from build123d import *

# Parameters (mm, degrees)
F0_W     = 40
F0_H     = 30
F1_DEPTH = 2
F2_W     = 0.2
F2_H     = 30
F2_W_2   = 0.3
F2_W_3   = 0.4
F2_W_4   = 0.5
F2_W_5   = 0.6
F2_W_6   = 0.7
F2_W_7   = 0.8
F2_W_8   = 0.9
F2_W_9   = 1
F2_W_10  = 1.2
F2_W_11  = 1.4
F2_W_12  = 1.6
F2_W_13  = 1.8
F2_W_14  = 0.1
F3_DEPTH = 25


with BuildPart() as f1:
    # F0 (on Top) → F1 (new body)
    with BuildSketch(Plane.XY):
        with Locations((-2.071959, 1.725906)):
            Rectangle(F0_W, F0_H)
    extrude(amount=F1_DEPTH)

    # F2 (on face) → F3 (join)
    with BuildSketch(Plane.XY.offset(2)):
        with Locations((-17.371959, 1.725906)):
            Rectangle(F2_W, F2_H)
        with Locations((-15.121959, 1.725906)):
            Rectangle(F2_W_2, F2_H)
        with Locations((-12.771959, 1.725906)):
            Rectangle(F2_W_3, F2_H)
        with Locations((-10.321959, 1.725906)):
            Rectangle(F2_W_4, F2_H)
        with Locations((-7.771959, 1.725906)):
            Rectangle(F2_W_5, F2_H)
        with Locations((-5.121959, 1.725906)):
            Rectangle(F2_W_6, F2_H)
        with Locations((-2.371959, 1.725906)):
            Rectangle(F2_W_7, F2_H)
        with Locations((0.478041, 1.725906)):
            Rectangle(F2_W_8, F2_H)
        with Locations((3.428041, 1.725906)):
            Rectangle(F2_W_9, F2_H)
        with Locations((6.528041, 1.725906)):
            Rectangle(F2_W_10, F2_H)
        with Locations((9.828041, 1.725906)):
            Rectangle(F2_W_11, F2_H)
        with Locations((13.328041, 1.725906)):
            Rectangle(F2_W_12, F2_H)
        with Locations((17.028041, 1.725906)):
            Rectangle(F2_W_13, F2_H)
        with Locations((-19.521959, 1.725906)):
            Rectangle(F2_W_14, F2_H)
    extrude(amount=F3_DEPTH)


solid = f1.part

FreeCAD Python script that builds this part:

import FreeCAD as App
import Part
import Sketcher
from FreeCAD import Vector
Q = App.Units.Quantity

doc = App.newDocument("Part")
body = doc.addObject("PartDesign::Body", "Body")

# Sketch on XY plane
sketch1 = doc.addObject("Sketcher::SketchObject", "Sketch")
body.addObject(sketch1)
sketch1.AttachmentSupport = (doc.XY_Plane, [""])
sketch1.MapMode = "FlatFace"
sketch1.addGeometry(Part.LineSegment(Vector(-22, 17, 0), Vector(-22, -13, 0)), False)
sketch1.addGeometry(Part.LineSegment(Vector(-22, -13, 0), Vector(18, -13, 0)), False)
sketch1.addGeometry(Part.LineSegment(Vector(18, -13, 0), Vector(18, 17, 0)), False)
sketch1.addGeometry(Part.LineSegment(Vector(18, 17, 0), Vector(-22, 17, 0)), False)
sketch1.addConstraint(Sketcher.Constraint("Coincident", 0, 2, 1, 1))
sketch1.addConstraint(Sketcher.Constraint("Coincident", 1, 2, 2, 1))
sketch1.addConstraint(Sketcher.Constraint("Coincident", 2, 2, 3, 1))
sketch1.addConstraint(Sketcher.Constraint("Coincident", 3, 2, 0, 1))
sketch1.addConstraint(Sketcher.Constraint("Vertical", 0))
sketch1.addConstraint(Sketcher.Constraint("Horizontal", 1))
sketch1.addConstraint(Sketcher.Constraint("Vertical", 2))
sketch1.addConstraint(Sketcher.Constraint("Horizontal", 3))
sketch1.addConstraint(Sketcher.Constraint("DistanceX", 1, 1, 1, 2, Q("40 mm")))
sketch1.addConstraint(Sketcher.Constraint("DistanceY", 0, 2, 0, 1, Q("30 mm")))
sketch1.addConstraint(Sketcher.Constraint("DistanceX", 0, 2, -1, 1, Q("22.071959 mm")))
sketch1.addConstraint(Sketcher.Constraint("DistanceY", 0, 2, -1, 1, Q("13.274094 mm")))
pad1 = doc.addObject("PartDesign::Pad", "Pad")
body.addObject(pad1)
pad1.Profile = sketch1
pad1.Length = 2

# Sketch on XY plane
sketch2 = doc.addObject("Sketcher::SketchObject", "Sketch001")
body.addObject(sketch2)
sketch2.AttachmentSupport = (doc.XY_Plane, [""])
sketch2.MapMode = "FlatFace"
sketch2.AttachmentOffset = App.Placement(Vector(0, 0, 2), App.Rotation())
sketch2.addGeometry(Part.LineSegment(Vector(-17.47, 16.73, 0), Vector(-17.47, -13.27, 0)), False)
sketch2.addGeometry(Part.LineSegment(Vector(-17.47, -13.27, 0), Vector(-17.27, -13.27, 0)), False)
sketch2.addGeometry(Part.LineSegment(Vector(-17.27, -13.27, 0), Vector(-17.27, 16.73, 0)), False)
sketch2.addGeometry(Part.LineSegment(Vector(-17.27, 16.73, 0), Vector(-17.47, 16.73, 0)), False)
sketch2.addGeometry(Part.LineSegment(Vector(-15.27, 16.73, 0), Vector(-15.27, -13.27, 0)), False)
sketch2.addGeometry(Part.LineSegment(Vector(-15.27, -13.27, 0), Vector(-14.97, -13.27, 0)), False)
sketch2.addGeometry(Part.LineSegment(Vector(-14.97, -13.27, 0), Vector(-14.97, 16.73, 0)), False)
sketch2.addGeometry(Part.LineSegment(Vector(-14.97, 16.73, 0), Vector(-15.27, 16.73, 0)), False)
sketch2.addGeometry(Part.LineSegment(Vector(-12.97, 16.73, 0), Vector(-12.97, -13.27, 0)), False)
sketch2.addGeometry(Part.LineSegment(Vector(-12.97, -13.27, 0), Vector(-12.57, -13.27, 0)), False)
sketch2.addGeometry(Part.LineSegment(Vector(-12.57, -13.27, 0), Vector(-12.57, 16.73, 0)), False)
sketch2.addGeometry(Part.LineSegment(Vector(-12.57, 16.73, 0), Vector(-12.97, 16.73, 0)), False)
sketch2.addGeometry(Part.LineSegment(Vector(-10.57, 16.73, 0), Vector(-10.57, -13.27, 0)), False)
sketch2.addGeometry(Part.LineSegment(Vector(-10.57, -13.27, 0), Vector(-10.07, -13.27, 0)), False)
sketch2.addGeometry(Part.LineSegment(Vector(-10.07, -13.27, 0), Vector(-10.07, 16.73, 0)), False)
sketch2.addGeometry(Part.LineSegment(Vector(-10.07, 16.73, 0), Vector(-10.57, 16.73, 0)), False)
sketch2.addGeometry(Part.LineSegment(Vector(-8.07, 16.73, 0), Vector(-8.07, -13.27, 0)), False)
sketch2.addGeometry(Part.LineSegment(Vector(-8.07, -13.27, 0), Vector(-7.47, -13.27, 0)), False)
sketch2.addGeometry(Part.LineSegment(Vector(-7.47, -13.27, 0), Vector(-7.47, 16.73, 0)), False)
sketch2.addGeometry(Part.LineSegment(Vector(-7.47, 16.73, 0), Vector(-8.07, 16.73, 0)), False)
sketch2.addGeometry(Part.LineSegment(Vector(-5.47, 16.73, 0), Vector(-5.47, -13.27, 0)), False)
sketch2.addGeometry(Part.LineSegment(Vector(-5.47, -13.27, 0), Vector(-4.77, -13.27, 0)), False)
sketch2.addGeometry(Part.LineSegment(Vector(-4.77, -13.27, 0), Vector(-4.77, 16.73, 0)), False)
sketch2.addGeometry(Part.LineSegment(Vector(-4.77, 16.73, 0), Vector(-5.47, 16.73, 0)), False)
sketch2.addGeometry(Part.LineSegment(Vector(-2.77, 16.73, 0), Vector(-2.77, -13.27, 0)), False)
sketch2.addGeometry(Part.LineSegment(Vector(-2.77, -13.27, 0), Vector(-1.97, -13.27, 0)), False)
sketch2.addGeometry(Part.LineSegment(Vector(-1.97, -13.27, 0), Vector(-1.97, 16.73, 0)), False)
sketch2.addGeometry(Part.LineSegment(Vector(-1.97, 16.73, 0), Vector(-2.77, 16.73, 0)), False)
sketch2.addGeometry(Part.LineSegment(Vector(0.03, 16.73, 0), Vector(0.03, -13.27, 0)), False)
sketch2.addGeometry(Part.LineSegment(Vector(0.03, -13.27, 0), Vector(0.93, -13.27, 0)), False)
sketch2.addGeometry(Part.LineSegment(Vector(0.93, -13.27, 0), Vector(0.93, 16.73, 0)), False)
sketch2.addGeometry(Part.LineSegment(Vector(0.93, 16.73, 0), Vector(0.03, 16.73, 0)), False)
sketch2.addGeometry(Part.LineSegment(Vector(2.93, 16.73, 0), Vector(2.93, -13.27, 0)), False)
sketch2.addGeometry(Part.LineSegment(Vector(2.93, -13.27, 0), Vector(3.93, -13.27, 0)), False)
sketch2.addGeometry(Part.LineSegment(Vector(3.93, -13.27, 0), Vector(3.93, 16.73, 0)), False)
sketch2.addGeometry(Part.LineSegment(Vector(3.93, 16.73, 0), Vector(2.93, 16.73, 0)), False)
sketch2.addGeometry(Part.LineSegment(Vector(5.93, 16.73, 0), Vector(5.93, -13.27, 0)), False)
sketch2.addGeometry(Part.LineSegment(Vector(5.93, -13.27, 0), Vector(7.13, -13.27, 0)), False)
sketch2.addGeometry(Part.LineSegment(Vector(7.13, -13.27, 0), Vector(7.13, 16.73, 0)), False)
sketch2.addGeometry(Part.LineSegment(Vector(7.13, 16.73, 0), Vector(5.93, 16.73, 0)), False)
sketch2.addGeometry(Part.LineSegment(Vector(9.13, 16.73, 0), Vector(9.13, -13.27, 0)), False)
sketch2.addGeometry(Part.LineSegment(Vector(9.13, -13.27, 0), Vector(10.53, -13.27, 0)), False)
sketch2.addGeometry(Part.LineSegment(Vector(10.53, -13.27, 0), Vector(10.53, 16.73, 0)), False)
sketch2.addGeometry(Part.LineSegment(Vector(10.53, 16.73, 0), Vector(9.13, 16.73, 0)), False)
sketch2.addGeometry(Part.LineSegment(Vector(12.53, 16.73, 0), Vector(12.53, -13.27, 0)), False)
sketch2.addGeometry(Part.LineSegment(Vector(12.53, -13.27, 0), Vector(14.13, -13.27, 0)), False)
sketch2.addGeometry(Part.LineSegment(Vector(14.13, -13.27, 0), Vector(14.13, 16.73, 0)), False)
sketch2.addGeometry(Part.LineSegment(Vector(14.13, 16.73, 0), Vector(12.53, 16.73, 0)), False)
sketch2.addGeometry(Part.LineSegment(Vector(16.13, 16.73, 0), Vector(16.13, -13.27, 0)), False)
sketch2.addGeometry(Part.LineSegment(Vector(16.13, -13.27, 0), Vector(17.93, -13.27, 0)), False)
sketch2.addGeometry(Part.LineSegment(Vector(17.93, -13.27, 0), Vector(17.93, 16.73, 0)), False)
sketch2.addGeometry(Part.LineSegment(Vector(17.93, 16.73, 0), Vector(16.13, 16.73, 0)), False)
sketch2.addGeometry(Part.LineSegment(Vector(-19.57, 16.73, 0), Vector(-19.57, -13.27, 0)), False)
sketch2.addGeometry(Part.LineSegment(Vector(-19.57, -13.27, 0), Vector(-19.47, -13.27, 0)), False)
sketch2.addGeometry(Part.LineSegment(Vector(-19.47, -13.27, 0), Vector(-19.47, 16.73, 0)), False)
sketch2.addGeometry(Part.LineSegment(Vector(-19.47, 16.73, 0), Vector(-19.57, 16.73, 0)), False)
sketch2.addConstraint(Sketcher.Constraint("Coincident", 0, 2, 1, 1))
sketch2.addConstraint(Sketcher.Constraint("Coincident", 1, 2, 2, 1))
sketch2.addConstraint(Sketcher.Constraint("Coincident", 2, 2, 3, 1))
sketch2.addConstraint(Sketcher.Constraint("Coincident", 3, 2, 0, 1))
sketch2.addConstraint(Sketcher.Constraint("Coincident", 4, 2, 5, 1))
sketch2.addConstraint(Sketcher.Constraint("Coincident", 5, 2, 6, 1))
sketch2.addConstraint(Sketcher.Constraint("Coincident", 6, 2, 7, 1))
sketch2.addConstraint(Sketcher.Constraint("Coincident", 7, 2, 4, 1))
sketch2.addConstraint(Sketcher.Constraint("Coincident", 8, 2, 9, 1))
sketch2.addConstraint(Sketcher.Constraint("Coincident", 9, 2, 10, 1))
sketch2.addConstraint(Sketcher.Constraint("Coincident", 10, 2, 11, 1))
sketch2.addConstraint(Sketcher.Constraint("Coincident", 11, 2, 8, 1))
sketch2.addConstraint(Sketcher.Constraint("Coincident", 12, 2, 13, 1))
sketch2.addConstraint(Sketcher.Constraint("Coincident", 13, 2, 14, 1))
sketch2.addConstraint(Sketcher.Constraint("Coincident", 14, 2, 15, 1))
sketch2.addConstraint(Sketcher.Constraint("Coincident", 15, 2, 12, 1))
sketch2.addConstraint(Sketcher.Constraint("Coincident", 16, 2, 17, 1))
sketch2.addConstraint(Sketcher.Constraint("Coincident", 17, 2, 18, 1))
sketch2.addConstraint(Sketcher.Constraint("Coincident", 18, 2, 19, 1))
sketch2.addConstraint(Sketcher.Constraint("Coincident", 19, 2, 16, 1))
sketch2.addConstraint(Sketcher.Constraint("Coincident", 20, 2, 21, 1))
sketch2.addConstraint(Sketcher.Constraint("Coincident", 21, 2, 22, 1))
sketch2.addConstraint(Sketcher.Constraint("Coincident", 22, 2, 23, 1))
sketch2.addConstraint(Sketcher.Constraint("Coincident", 23, 2, 20, 1))
sketch2.addConstraint(Sketcher.Constraint("Coincident", 24, 2, 25, 1))
sketch2.addConstraint(Sketcher.Constraint("Coincident", 25, 2, 26, 1))
sketch2.addConstraint(Sketcher.Constraint("Coincident", 26, 2, 27, 1))
sketch2.addConstraint(Sketcher.Constraint("Coincident", 27, 2, 24, 1))
sketch2.addConstraint(Sketcher.Constraint("Coincident", 28, 2, 29, 1))
sketch2.addConstraint(Sketcher.Constraint("Coincident", 29, 2, 30, 1))
sketch2.addConstraint(Sketcher.Constraint("Coincident", 30, 2, 31, 1))
sketch2.addConstraint(Sketcher.Constraint("Coincident", 31, 2, 28, 1))
sketch2.addConstraint(Sketcher.Constraint("Coincident", 32, 2, 33, 1))
sketch2.addConstraint(Sketcher.Constraint("Coincident", 33, 2, 34, 1))
sketch2.addConstraint(Sketcher.Constraint("Coincident", 34, 2, 35, 1))
sketch2.addConstraint(Sketcher.Constraint("Coincident", 35, 2, 32, 1))
sketch2.addConstraint(Sketcher.Constraint("Coincident", 36, 2, 37, 1))
sketch2.addConstraint(Sketcher.Constraint("Coincident", 37, 2, 38, 1))
sketch2.addConstraint(Sketcher.Constraint("Coincident", 38, 2, 39, 1))
sketch2.addConstraint(Sketcher.Constraint("Coincident", 39, 2, 36, 1))
sketch2.addConstraint(Sketcher.Constraint("Coincident", 40, 2, 41, 1))
sketch2.addConstraint(Sketcher.Constraint("Coincident", 41, 2, 42, 1))
sketch2.addConstraint(Sketcher.Constraint("Coincident", 42, 2, 43, 1))
sketch2.addConstraint(Sketcher.Constraint("Coincident", 43, 2, 40, 1))
sketch2.addConstraint(Sketcher.Constraint("Coincident", 44, 2, 45, 1))
sketch2.addConstraint(Sketcher.Constraint("Coincident", 45, 2, 46, 1))
sketch2.addConstraint(Sketcher.Constraint("Coincident", 46, 2, 47, 1))
sketch2.addConstraint(Sketcher.Constraint("Coincident", 47, 2, 44, 1))
sketch2.addConstraint(Sketcher.Constraint("Coincident", 48, 2, 49, 1))
sketch2.addConstraint(Sketcher.Constraint("Coincident", 49, 2, 50, 1))
sketch2.addConstraint(Sketcher.Constraint("Coincident", 50, 2, 51, 1))
sketch2.addConstraint(Sketcher.Constraint("Coincident", 51, 2, 48, 1))
sketch2.addConstraint(Sketcher.Constraint("Coincident", 52, 2, 53, 1))
sketch2.addConstraint(Sketcher.Constraint("Coincident", 53, 2, 54, 1))
sketch2.addConstraint(Sketcher.Constraint("Coincident", 54, 2, 55, 1))
sketch2.addConstraint(Sketcher.Constraint("Coincident", 55, 2, 52, 1))
sketch2.addConstraint(Sketcher.Constraint("Vertical", 0))
sketch2.addConstraint(Sketcher.Constraint("Horizontal", 1))
sketch2.addConstraint(Sketcher.Constraint("Vertical", 2))
sketch2.addConstraint(Sketcher.Constraint("Horizontal", 3))
sketch2.addConstraint(Sketcher.Constraint("Vertical", 4))
sketch2.addConstraint(Sketcher.Constraint("Horizontal", 5))
sketch2.addConstraint(Sketcher.Constraint("Vertical", 6))
sketch2.addConstraint(Sketcher.Constraint("Horizontal", 7))
sketch2.addConstraint(Sketcher.Constraint("Vertical", 8))
sketch2.addConstraint(Sketcher.Constraint("Horizontal", 9))
sketch2.addConstraint(Sketcher.Constraint("Vertical", 10))
sketch2.addConstraint(Sketcher.Constraint("Horizontal", 11))
sketch2.addConstraint(Sketcher.Constraint("Vertical", 12))
sketch2.addConstraint(Sketcher.Constraint("Horizontal", 13))
sketch2.addConstraint(Sketcher.Constraint("Vertical", 14))
sketch2.addConstraint(Sketcher.Constraint("Horizontal", 15))
sketch2.addConstraint(Sketcher.Constraint("Vertical", 16))
sketch2.addConstraint(Sketcher.Constraint("Horizontal", 17))
sketch2.addConstraint(Sketcher.Constraint("Vertical", 18))
sketch2.addConstraint(Sketcher.Constraint("Horizontal", 19))
sketch2.addConstraint(Sketcher.Constraint("Vertical", 20))
sketch2.addConstraint(Sketcher.Constraint("Horizontal", 21))
sketch2.addConstraint(Sketcher.Constraint("Vertical", 22))
sketch2.addConstraint(Sketcher.Constraint("Horizontal", 23))
sketch2.addConstraint(Sketcher.Constraint("Vertical", 24))
sketch2.addConstraint(Sketcher.Constraint("Horizontal", 25))
sketch2.addConstraint(Sketcher.Constraint("Vertical", 26))
sketch2.addConstraint(Sketcher.Constraint("Horizontal", 27))
sketch2.addConstraint(Sketcher.Constraint("Vertical", 28))
sketch2.addConstraint(Sketcher.Constraint("Horizontal", 29))
sketch2.addConstraint(Sketcher.Constraint("Vertical", 30))
sketch2.addConstraint(Sketcher.Constraint("Horizontal", 31))
sketch2.addConstraint(Sketcher.Constraint("Vertical", 32))
sketch2.addConstraint(Sketcher.Constraint("Horizontal", 33))
sketch2.addConstraint(Sketcher.Constraint("Vertical", 34))
sketch2.addConstraint(Sketcher.Constraint("Horizontal", 35))
sketch2.addConstraint(Sketcher.Constraint("Vertical", 36))
sketch2.addConstraint(Sketcher.Constraint("Horizontal", 37))
sketch2.addConstraint(Sketcher.Constraint("Vertical", 38))
sketch2.addConstraint(Sketcher.Constraint("Horizontal", 39))
sketch2.addConstraint(Sketcher.Constraint("Vertical", 40))
sketch2.addConstraint(Sketcher.Constraint("Horizontal", 41))
sketch2.addConstraint(Sketcher.Constraint("Vertical", 42))
sketch2.addConstraint(Sketcher.Constraint("Horizontal", 43))
sketch2.addConstraint(Sketcher.Constraint("Vertical", 44))
sketch2.addConstraint(Sketcher.Constraint("Horizontal", 45))
sketch2.addConstraint(Sketcher.Constraint("Vertical", 46))
sketch2.addConstraint(Sketcher.Constraint("Horizontal", 47))
sketch2.addConstraint(Sketcher.Constraint("Vertical", 48))
sketch2.addConstraint(Sketcher.Constraint("Horizontal", 49))
sketch2.addConstraint(Sketcher.Constraint("Vertical", 50))
sketch2.addConstraint(Sketcher.Constraint("Horizontal", 51))
sketch2.addConstraint(Sketcher.Constraint("Vertical", 52))
sketch2.addConstraint(Sketcher.Constraint("Horizontal", 53))
sketch2.addConstraint(Sketcher.Constraint("Vertical", 54))
sketch2.addConstraint(Sketcher.Constraint("Horizontal", 55))
sketch2.addConstraint(Sketcher.Constraint("Horizontal", 1, 2, 4, 2))
sketch2.addConstraint(Sketcher.Constraint("Horizontal", 3, 2, 6, 2))
sketch2.addConstraint(Sketcher.Constraint("Horizontal", 5, 2, 8, 2))
sketch2.addConstraint(Sketcher.Constraint("Horizontal", 7, 2, 10, 2))
sketch2.addConstraint(Sketcher.Constraint("Horizontal", 9, 2, 12, 2))
sketch2.addConstraint(Sketcher.Constraint("Horizontal", 11, 2, 14, 2))
sketch2.addConstraint(Sketcher.Constraint("Horizontal", 13, 2, 16, 2))
sketch2.addConstraint(Sketcher.Constraint("Horizontal", 15, 2, 18, 2))
sketch2.addConstraint(Sketcher.Constraint("Horizontal", 17, 2, 20, 2))
sketch2.addConstraint(Sketcher.Constraint("Horizontal", 19, 2, 22, 2))
sketch2.addConstraint(Sketcher.Constraint("Horizontal", 21, 2, 24, 2))
sketch2.addConstraint(Sketcher.Constraint("Horizontal", 23, 2, 26, 2))
sketch2.addConstraint(Sketcher.Constraint("Horizontal", 25, 2, 28, 2))
sketch2.addConstraint(Sketcher.Constraint("Horizontal", 27, 2, 30, 2))
sketch2.addConstraint(Sketcher.Constraint("Horizontal", 29, 2, 32, 2))
sketch2.addConstraint(Sketcher.Constraint("Horizontal", 31, 2, 34, 2))
sketch2.addConstraint(Sketcher.Constraint("Horizontal", 33, 2, 36, 2))
sketch2.addConstraint(Sketcher.Constraint("Horizontal", 35, 2, 38, 2))
sketch2.addConstraint(Sketcher.Constraint("Horizontal", 37, 2, 40, 2))
sketch2.addConstraint(Sketcher.Constraint("Horizontal", 39, 2, 42, 2))
sketch2.addConstraint(Sketcher.Constraint("Horizontal", 41, 2, 44, 2))
sketch2.addConstraint(Sketcher.Constraint("Horizontal", 43, 2, 46, 2))
sketch2.addConstraint(Sketcher.Constraint("Horizontal", 45, 2, 48, 2))
sketch2.addConstraint(Sketcher.Constraint("Horizontal", 47, 2, 50, 2))
sketch2.addConstraint(Sketcher.Constraint("Horizontal", 49, 2, 52, 2))
sketch2.addConstraint(Sketcher.Constraint("Horizontal", 51, 2, 54, 2))
sketch2.addConstraint(Sketcher.Constraint("DistanceX", 33, 1, 33, 2, Q("1 mm")))
sketch2.addConstraint(Sketcher.Constraint("DistanceY", 0, 2, 0, 1, Q("30 mm")))
sketch2.addConstraint(Sketcher.Constraint("DistanceX", 1, 1, 1, 2, Q("0.2 mm")))
sketch2.addConstraint(Sketcher.Constraint("DistanceX", 5, 1, 5, 2, Q("0.3 mm")))
sketch2.addConstraint(Sketcher.Constraint("DistanceX", 9, 1, 9, 2, Q("0.4 mm")))
sketch2.addConstraint(Sketcher.Constraint("DistanceX", 13, 1, 13, 2, Q("0.5 mm")))
sketch2.addConstraint(Sketcher.Constraint("DistanceX", 17, 1, 17, 2, Q("0.6 mm")))
sketch2.addConstraint(Sketcher.Constraint("DistanceX", 21, 1, 21, 2, Q("0.7 mm")))
sketch2.addConstraint(Sketcher.Constraint("DistanceX", 25, 1, 25, 2, Q("0.8 mm")))
sketch2.addConstraint(Sketcher.Constraint("DistanceX", 29, 1, 29, 2, Q("0.9 mm")))
sketch2.addConstraint(Sketcher.Constraint("DistanceX", 37, 1, 37, 2, Q("1.2 mm")))
sketch2.addConstraint(Sketcher.Constraint("DistanceX", 41, 1, 41, 2, Q("1.4 mm")))
sketch2.addConstraint(Sketcher.Constraint("DistanceX", 45, 1, 45, 2, Q("1.6 mm")))
sketch2.addConstraint(Sketcher.Constraint("DistanceX", 49, 1, 49, 2, Q("1.8 mm")))
sketch2.addConstraint(Sketcher.Constraint("DistanceX", 53, 1, 53, 2, Q("0.1 mm")))
sketch2.addConstraint(Sketcher.Constraint("DistanceX", 1, 2, 4, 2, Q("2 mm")))
sketch2.addConstraint(Sketcher.Constraint("DistanceX", 5, 2, 8, 2, Q("2 mm")))
sketch2.addConstraint(Sketcher.Constraint("DistanceX", 9, 2, 12, 2, Q("2 mm")))
sketch2.addConstraint(Sketcher.Constraint("DistanceX", 13, 2, 16, 2, Q("2 mm")))
sketch2.addConstraint(Sketcher.Constraint("DistanceX", 17, 2, 20, 2, Q("2 mm")))
sketch2.addConstraint(Sketcher.Constraint("DistanceX", 21, 2, 24, 2, Q("2 mm")))
sketch2.addConstraint(Sketcher.Constraint("DistanceX", 25, 2, 28, 2, Q("2 mm")))
sketch2.addConstraint(Sketcher.Constraint("DistanceX", 29, 2, 32, 2, Q("2 mm")))
sketch2.addConstraint(Sketcher.Constraint("DistanceX", 33, 2, 36, 2, Q("2 mm")))
sketch2.addConstraint(Sketcher.Constraint("DistanceX", 37, 2, 40, 2, Q("2 mm")))
sketch2.addConstraint(Sketcher.Constraint("DistanceX", 41, 2, 44, 2, Q("2 mm")))
sketch2.addConstraint(Sketcher.Constraint("DistanceX", 45, 2, 48, 2, Q("2 mm")))
sketch2.addConstraint(Sketcher.Constraint("DistanceX", 53, 2, 0, 2, Q("2 mm")))
sketch2.addConstraint(Sketcher.Constraint("DistanceX", 0, 2, -1, 1, Q("17.471959 mm")))
sketch2.addConstraint(Sketcher.Constraint("DistanceY", 0, 2, -1, 1, Q("13.274094 mm")))
pad2 = doc.addObject("PartDesign::Pad", "Pad001")
body.addObject(pad2)
pad2.Profile = sketch2
pad2.Length = 25

doc.recompute()
